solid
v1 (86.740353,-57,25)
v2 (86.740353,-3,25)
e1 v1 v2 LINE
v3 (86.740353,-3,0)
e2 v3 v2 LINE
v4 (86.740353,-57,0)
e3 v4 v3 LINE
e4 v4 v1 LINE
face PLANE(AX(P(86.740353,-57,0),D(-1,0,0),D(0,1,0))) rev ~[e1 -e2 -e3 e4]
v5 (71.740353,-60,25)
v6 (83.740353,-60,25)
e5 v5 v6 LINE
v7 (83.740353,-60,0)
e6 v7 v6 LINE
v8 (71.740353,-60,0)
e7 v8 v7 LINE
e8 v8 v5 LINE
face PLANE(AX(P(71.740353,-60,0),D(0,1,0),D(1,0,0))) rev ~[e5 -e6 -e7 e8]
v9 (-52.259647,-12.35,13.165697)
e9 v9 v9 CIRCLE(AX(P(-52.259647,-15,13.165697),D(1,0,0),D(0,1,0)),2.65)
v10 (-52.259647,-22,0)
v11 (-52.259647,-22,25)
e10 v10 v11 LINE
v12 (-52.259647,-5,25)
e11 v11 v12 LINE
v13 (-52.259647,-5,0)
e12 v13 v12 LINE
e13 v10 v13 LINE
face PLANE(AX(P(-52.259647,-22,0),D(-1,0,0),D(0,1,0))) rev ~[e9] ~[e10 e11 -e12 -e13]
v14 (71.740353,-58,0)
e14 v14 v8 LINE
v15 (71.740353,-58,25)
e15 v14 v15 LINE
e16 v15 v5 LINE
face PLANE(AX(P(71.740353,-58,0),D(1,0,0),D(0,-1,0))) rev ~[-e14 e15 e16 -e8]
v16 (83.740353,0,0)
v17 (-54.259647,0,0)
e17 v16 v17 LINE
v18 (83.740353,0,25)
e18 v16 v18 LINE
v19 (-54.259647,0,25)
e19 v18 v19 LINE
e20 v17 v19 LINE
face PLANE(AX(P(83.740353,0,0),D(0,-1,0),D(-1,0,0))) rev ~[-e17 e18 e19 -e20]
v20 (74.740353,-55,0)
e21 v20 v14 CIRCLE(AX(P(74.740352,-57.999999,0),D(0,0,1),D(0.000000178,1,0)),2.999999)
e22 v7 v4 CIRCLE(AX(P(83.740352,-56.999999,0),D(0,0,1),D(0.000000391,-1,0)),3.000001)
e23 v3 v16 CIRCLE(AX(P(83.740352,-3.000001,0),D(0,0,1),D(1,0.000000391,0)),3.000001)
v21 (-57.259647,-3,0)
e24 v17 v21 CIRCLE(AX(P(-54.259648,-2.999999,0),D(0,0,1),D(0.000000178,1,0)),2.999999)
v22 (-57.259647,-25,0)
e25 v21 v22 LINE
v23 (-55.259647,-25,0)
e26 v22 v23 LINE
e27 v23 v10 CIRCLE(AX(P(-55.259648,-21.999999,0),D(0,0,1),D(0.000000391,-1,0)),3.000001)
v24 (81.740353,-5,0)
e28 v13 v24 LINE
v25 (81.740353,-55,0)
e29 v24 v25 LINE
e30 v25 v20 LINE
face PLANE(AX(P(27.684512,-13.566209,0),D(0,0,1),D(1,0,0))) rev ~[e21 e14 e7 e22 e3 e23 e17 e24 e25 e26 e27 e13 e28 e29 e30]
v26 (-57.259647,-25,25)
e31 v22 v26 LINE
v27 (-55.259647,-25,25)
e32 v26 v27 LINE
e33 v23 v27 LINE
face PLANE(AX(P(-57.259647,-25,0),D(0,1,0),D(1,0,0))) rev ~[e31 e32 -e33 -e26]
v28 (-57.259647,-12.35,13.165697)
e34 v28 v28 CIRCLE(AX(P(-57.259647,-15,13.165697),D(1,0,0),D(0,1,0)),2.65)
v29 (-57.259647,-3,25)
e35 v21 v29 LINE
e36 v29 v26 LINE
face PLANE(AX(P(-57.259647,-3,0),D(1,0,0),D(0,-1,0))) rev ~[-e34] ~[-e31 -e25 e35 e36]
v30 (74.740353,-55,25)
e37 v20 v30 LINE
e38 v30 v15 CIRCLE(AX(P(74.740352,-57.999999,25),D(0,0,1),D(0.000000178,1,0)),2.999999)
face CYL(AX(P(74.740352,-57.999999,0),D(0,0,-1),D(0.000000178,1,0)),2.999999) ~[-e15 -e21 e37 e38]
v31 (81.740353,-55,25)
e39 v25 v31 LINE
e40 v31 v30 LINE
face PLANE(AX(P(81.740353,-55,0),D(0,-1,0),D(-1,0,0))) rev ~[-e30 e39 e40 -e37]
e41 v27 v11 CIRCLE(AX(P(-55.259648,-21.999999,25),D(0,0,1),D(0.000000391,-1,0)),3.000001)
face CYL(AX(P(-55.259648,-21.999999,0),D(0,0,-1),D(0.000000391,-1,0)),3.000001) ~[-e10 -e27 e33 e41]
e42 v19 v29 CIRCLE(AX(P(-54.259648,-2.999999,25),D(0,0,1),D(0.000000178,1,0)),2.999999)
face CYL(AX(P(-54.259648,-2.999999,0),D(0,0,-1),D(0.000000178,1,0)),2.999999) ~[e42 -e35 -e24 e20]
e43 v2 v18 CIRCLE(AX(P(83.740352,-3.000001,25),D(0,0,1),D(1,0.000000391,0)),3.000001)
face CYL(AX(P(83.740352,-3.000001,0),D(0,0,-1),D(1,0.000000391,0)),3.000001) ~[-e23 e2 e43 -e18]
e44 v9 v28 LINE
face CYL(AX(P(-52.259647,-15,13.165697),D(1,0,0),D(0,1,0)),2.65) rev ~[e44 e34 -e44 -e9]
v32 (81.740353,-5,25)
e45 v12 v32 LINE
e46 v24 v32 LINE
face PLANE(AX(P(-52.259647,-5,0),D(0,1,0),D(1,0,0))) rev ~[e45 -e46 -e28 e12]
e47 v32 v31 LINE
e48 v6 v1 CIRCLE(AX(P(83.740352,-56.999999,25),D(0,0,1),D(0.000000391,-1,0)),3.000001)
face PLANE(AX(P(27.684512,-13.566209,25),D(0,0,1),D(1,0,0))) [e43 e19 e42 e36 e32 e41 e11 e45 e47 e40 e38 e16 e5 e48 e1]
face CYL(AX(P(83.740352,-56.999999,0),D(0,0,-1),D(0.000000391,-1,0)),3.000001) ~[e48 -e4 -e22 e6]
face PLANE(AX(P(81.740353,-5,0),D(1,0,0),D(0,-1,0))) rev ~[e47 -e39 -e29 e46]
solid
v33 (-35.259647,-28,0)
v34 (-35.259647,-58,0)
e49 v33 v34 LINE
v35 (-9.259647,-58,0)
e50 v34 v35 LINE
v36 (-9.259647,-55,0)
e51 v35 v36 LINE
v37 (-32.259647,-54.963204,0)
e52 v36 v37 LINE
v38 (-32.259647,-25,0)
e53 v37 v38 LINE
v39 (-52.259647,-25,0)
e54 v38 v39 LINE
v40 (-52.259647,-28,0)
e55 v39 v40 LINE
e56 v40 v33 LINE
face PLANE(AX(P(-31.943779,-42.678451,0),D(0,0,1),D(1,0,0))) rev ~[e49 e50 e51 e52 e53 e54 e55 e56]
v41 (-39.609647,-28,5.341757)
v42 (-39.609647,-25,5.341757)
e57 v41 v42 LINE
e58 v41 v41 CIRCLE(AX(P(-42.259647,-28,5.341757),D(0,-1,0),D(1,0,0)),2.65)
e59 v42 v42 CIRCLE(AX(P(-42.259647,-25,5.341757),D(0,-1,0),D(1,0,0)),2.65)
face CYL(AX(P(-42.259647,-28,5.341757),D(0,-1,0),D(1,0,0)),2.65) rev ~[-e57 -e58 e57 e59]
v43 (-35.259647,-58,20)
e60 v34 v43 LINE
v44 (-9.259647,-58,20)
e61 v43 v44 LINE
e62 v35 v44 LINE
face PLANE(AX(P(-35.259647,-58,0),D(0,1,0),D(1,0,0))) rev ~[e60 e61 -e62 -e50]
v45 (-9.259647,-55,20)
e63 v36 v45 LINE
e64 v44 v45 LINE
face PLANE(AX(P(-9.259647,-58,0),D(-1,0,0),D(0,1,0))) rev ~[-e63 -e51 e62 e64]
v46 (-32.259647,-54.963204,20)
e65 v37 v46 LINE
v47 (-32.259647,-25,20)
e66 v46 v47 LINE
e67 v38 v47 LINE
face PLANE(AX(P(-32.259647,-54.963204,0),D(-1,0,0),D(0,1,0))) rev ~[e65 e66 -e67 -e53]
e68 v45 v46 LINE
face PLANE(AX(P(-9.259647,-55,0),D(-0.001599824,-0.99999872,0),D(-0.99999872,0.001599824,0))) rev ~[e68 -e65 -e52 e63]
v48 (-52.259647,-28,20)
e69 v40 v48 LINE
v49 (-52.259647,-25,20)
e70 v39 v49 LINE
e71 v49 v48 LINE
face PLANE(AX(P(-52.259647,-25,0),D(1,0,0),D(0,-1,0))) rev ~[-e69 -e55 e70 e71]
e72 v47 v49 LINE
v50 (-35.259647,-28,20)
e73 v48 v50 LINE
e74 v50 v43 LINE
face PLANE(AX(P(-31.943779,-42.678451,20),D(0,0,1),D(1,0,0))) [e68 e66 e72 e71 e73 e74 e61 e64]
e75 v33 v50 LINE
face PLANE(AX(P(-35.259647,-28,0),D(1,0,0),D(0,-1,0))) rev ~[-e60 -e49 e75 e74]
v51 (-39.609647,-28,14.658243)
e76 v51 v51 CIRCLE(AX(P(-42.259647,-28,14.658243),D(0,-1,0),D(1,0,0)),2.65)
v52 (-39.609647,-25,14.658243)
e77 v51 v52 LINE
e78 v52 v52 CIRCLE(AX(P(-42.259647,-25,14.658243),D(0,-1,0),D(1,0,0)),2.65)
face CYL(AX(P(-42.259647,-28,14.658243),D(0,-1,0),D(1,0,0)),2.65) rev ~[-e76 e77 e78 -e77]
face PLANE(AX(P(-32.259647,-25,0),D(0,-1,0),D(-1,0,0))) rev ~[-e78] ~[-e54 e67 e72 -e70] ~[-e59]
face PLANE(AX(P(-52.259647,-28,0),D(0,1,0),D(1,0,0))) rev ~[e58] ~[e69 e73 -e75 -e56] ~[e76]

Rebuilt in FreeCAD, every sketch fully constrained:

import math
import FreeCAD as App
import Part
import Sketcher
from FreeCAD import Vector


def edges_at(feature, points):
    """Names of the edges that pass closest to the given points."""
    edges = feature.Shape.Edges
    near = lambda p: min(range(len(edges)), key=lambda i: edges[i].distToShape(Part.Vertex(*p))[0])
    return sorted({f"Edge{near(p) + 1}" for p in points})


def add_polygon(sketch, points):
    """Adds a closed chain of lines whose ends are joined by coincident constraints."""
    first, n = sketch.GeometryCount, len(points)
    for a, b in zip(points, points[1:] + points[:1]):
        sketch.addGeometry(Part.LineSegment(App.Vector(*a, 0), App.Vector(*b, 0)), False)
    for i in range(n):
        sketch.addConstraint(Sketcher.Constraint("Coincident", first + i, 2, first + (i + 1) % n, 1))

doc = App.newDocument("Part")
body = doc.addObject("PartDesign::Body", "Body")

# Sketch on XY plane
sketch1 = doc.addObject("Sketcher::SketchObject", "Sketch")
body.addObject(sketch1)
sketch1.AttachmentSupport = (doc.XY_Plane, [""])
sketch1.MapMode = "FlatFace"
sketch1.addGeometry([
    Part.LineSegment(Vector(83.7, 0, 0), Vector(-54.3, 0, 0)),  # 0
    Part.ArcOfCircle(Part.Circle(Vector(-54.3, -3, 0), Vector(0, 0, 1), 3), math.radians(90), math.radians(180)),  # 1
    Part.LineSegment(Vector(-57.3, -3, 0), Vector(-57.3, -25, 0)),  # 2
    Part.LineSegment(Vector(-57.3, -25, 0), Vector(-55.3, -25, 0)),  # 3
    Part.ArcOfCircle(Part.Circle(Vector(-55.3, -22, 0), Vector(0, 0, 1), 3), math.radians(-90), math.radians(0)),  # 4
    Part.LineSegment(Vector(-52.3, -22, 0), Vector(-52.3, -5, 0)),  # 5
    Part.LineSegment(Vector(-52.3, -5, 0), Vector(81.7, -5, 0)),  # 6
    Part.LineSegment(Vector(81.7, -5, 0), Vector(81.7, -55, 0)),  # 7
    Part.LineSegment(Vector(81.7, -55, 0), Vector(74.7, -55, 0)),  # 8
    Part.ArcOfCircle(Part.Circle(Vector(74.7, -58, 0), Vector(0, 0, 1), 3), math.radians(90), math.radians(180)),  # 9
    Part.LineSegment(Vector(71.7, -58, 0), Vector(71.7, -60, 0)),  # 10
    Part.LineSegment(Vector(71.7, -60, 0), Vector(83.7, -60, 0)),  # 11
    Part.ArcOfCircle(Part.Circle(Vector(83.7, -57, 0), Vector(0, 0, 1), 3), math.radians(-90), math.radians(0)),  # 12
    Part.LineSegment(Vector(86.7, -57, 0), Vector(86.7, -3, 0)),  # 13
    Part.ArcOfCircle(Part.Circle(Vector(83.7, -3, 0), Vector(0, 0, 1), 3), math.radians(0), math.radians(90)),  # 14
], False)
sketch1.addConstraint([
    Sketcher.Constraint("Tangent", 0, 2, 1, 1),
    Sketcher.Constraint("Tangent", 1, 2, 2, 1),
    Sketcher.Constraint("Coincident", 2, 2, 3, 1),
    Sketcher.Constraint("Tangent", 3, 2, 4, 1),
    Sketcher.Constraint("Tangent", 4, 2, 5, 1),
    Sketcher.Constraint("Coincident", 5, 2, 6, 1),
    Sketcher.Constraint("Coincident", 6, 2, 7, 1),
    Sketcher.Constraint("Coincident", 7, 2, 8, 1),
    Sketcher.Constraint("Tangent", 8, 2, 9, 1),
    Sketcher.Constraint("Tangent", 9, 2, 10, 1),
    Sketcher.Constraint("Coincident", 10, 2, 11, 1),
    Sketcher.Constraint("Tangent", 11, 2, 12, 1),
    Sketcher.Constraint("Tangent", 12, 2, 13, 1),
    Sketcher.Constraint("Tangent", 13, 2, 14, 1),
    Sketcher.Constraint("Tangent", 14, 2, 0, 1),
    Sketcher.Constraint("Horizontal", 0),
    Sketcher.Constraint("Vertical", 2),
    Sketcher.Constraint("Horizontal", 3),
    Sketcher.Constraint("Vertical", 5),
    Sketcher.Constraint("Horizontal", 6),
    Sketcher.Constraint("Vertical", 7),
    Sketcher.Constraint("Horizontal", 8),
    Sketcher.Constraint("Vertical", 10),
    Sketcher.Constraint("Horizontal", 11),
    Sketcher.Constraint("Vertical", 13),
    Sketcher.Constraint("Equal", 1, 4),
    Sketcher.Constraint("Equal", 4, 9),
    Sketcher.Constraint("Equal", 9, 12),
    Sketcher.Constraint("Equal", 12, 14),
    Sketcher.Constraint("PointOnObject", 0, 2, -1),
    Sketcher.Constraint("Equal", 3, 10),
    Sketcher.Constraint("Radius", 1, 2.999999),
    Sketcher.Constraint("DistanceX", 0, 2, 0, 1, 138.0),
    Sketcher.Constraint("DistanceX", 3, 1, 3, 2, 2.0),
    Sketcher.Constraint("DistanceX", 6, 1, 6, 2, 134.0),
    Sketcher.Constraint("DistanceX", 8, 2, 8, 1, 7.0),
    Sketcher.Constraint("DistanceY", 2, 2, 2, 1, 22.0),
    Sketcher.Constraint("DistanceY", 5, 1, 5, 2, 17.0),
    Sketcher.Constraint("DistanceY", 7, 2, 7, 1, 50.0),
    Sketcher.Constraint("DistanceX", 4, 3, -1, 1, 55.259648),
])
pad1 = doc.addObject("PartDesign::Pad", "Pad")
body.addObject(pad1)
pad1.Profile = sketch1
pad1.Length = 25

# Sketch on YZ plane
sketch2 = doc.addObject("Sketcher::SketchObject", "Sketch001")
body.addObject(sketch2)
sketch2.AttachmentSupport = (doc.YZ_Plane, [""])
sketch2.MapMode = "FlatFace"
sketch2.AttachmentOffset = App.Placement(Vector(0, 0, -52.259647), App.Rotation())
sketch2.addGeometry(Part.Circle(Vector(-15, 13.2, 0), Vector(0, 0, 1), 2.6), False)
sketch2.addConstraint([
    Sketcher.Constraint("Diameter", 0, 5.3),
    Sketcher.Constraint("DistanceX", 0, 3, -1, 1, 15.0),
    Sketcher.Constraint("DistanceY", -1, 1, 0, 3, 13.165697),
])
pocket1 = doc.addObject("PartDesign::Pocket", "Pocket")
body.addObject(pocket1)
pocket1.Profile = sketch2
pocket1.Type = "ThroughAll"
body2 = doc.addObject("PartDesign::Body", "Body001")

# Sketch on XZ plane
sketch3 = doc.addObject("Sketcher::SketchObject", "Sketch002")
body2.addObject(sketch3)
sketch3.AttachmentSupport = (doc.getObject("XZ_Plane001"), [""])
sketch3.MapMode = "FlatFace"
sketch3.AttachmentOffset = App.Placement(Vector(0, 0, 60.9), App.Rotation())
add_polygon(sketch3, [(-57.2, 20), (-57.2, 0), (-17.2, 0), (-17.2, 20)])  # lines 0-3
sketch3.addGeometry(Part.Circle(Vector(-47.2, 5, 0), Vector(0, 0, 1), 2.6), False)  # 4
sketch3.addGeometry(Part.Circle(Vector(-47.2, 15, 0), Vector(0, 0, 1), 2.6), False)  # 5
sketch3.addConstraint([
    Sketcher.Constraint("Vertical", 0),
    Sketcher.Constraint("Horizontal", 1),
    Sketcher.Constraint("Vertical", 2),
    Sketcher.Constraint("Horizontal", 3),
    Sketcher.Constraint("Equal", 4, 5),
    Sketcher.Constraint("PointOnObject", 0, 2, -1),
    Sketcher.Constraint("Vertical", 4, 3, 5, 3),
    Sketcher.Constraint("Diameter", 4, 5.3),
    Sketcher.Constraint("DistanceX", 1, 1, 1, 2, 40.0),
    Sketcher.Constraint("DistanceY", 0, 2, 0, 1, 20.0),
    Sketcher.Constraint("DistanceX", 0, 2, 4, 3, 10.0),
    Sketcher.Constraint("DistanceX", 4, 3, -1, 1, 47.213471),
    Sketcher.Constraint("DistanceY", -1, 1, 4, 3, 5.012961),
    Sketcher.Constraint("DistanceY", -1, 1, 5, 3, 14.988404),
])
pad2 = doc.addObject("PartDesign::Pad", "Pad001")
body2.addObject(pad2)
pad2.Profile = sketch3
pad2.Length = 3
doc.recompute()

fillet = doc.addObject("PartDesign::Fillet", "Fillet")
body2.addObject(fillet)
fillet.Base = (pad2, edges_at(pad2, [
    (-37.213, -63.9, 20),
    (-37.213, -60.9, 20),
    (-37.213, -63.9, 0),
    (-37.213, -60.9, 0),
    (-17.213, -63.9, 10),
    (-17.213, -60.9, 10),
    (-57.213, -63.9, 10),
    (-57.213, -60.9, 10),
]))
fillet.Radius = 1
body3 = doc.addObject("PartDesign::Body", "Body002")

# Sketch on XY plane
sketch4 = doc.addObject("Sketcher::SketchObject", "Sketch003")
body3.addObject(sketch4)
sketch4.AttachmentSupport = (doc.getObject("XY_Plane002"), [""])
sketch4.MapMode = "FlatFace"
add_polygon(sketch4, [(-32.3, -25), (-52.3, -25), (-52.3, -28), (-35.3, -28), (-35.3, -58), (-9.3, -58), (-9.3, -55), (-32.3, -55)])  # lines 0-7
sketch4.addConstraint([
    Sketcher.Constraint("Horizontal", 0),
    Sketcher.Constraint("Vertical", 1),
    Sketcher.Constraint("Horizontal", 2),
    Sketcher.Constraint("Vertical", 3),
    Sketcher.Constraint("Horizontal", 4),
    Sketcher.Constraint("Vertical", 5),
    Sketcher.Constraint("Vertical", 7),
    Sketcher.Constraint("Equal", 1, 5),
    Sketcher.Constraint("DistanceX", 0, 2, 0, 1, 20.0),
    Sketcher.Constraint("DistanceX", 2, 1, 2, 2, 17.0),
    Sketcher.Constraint("DistanceX", 4, 1, 4, 2, 26.0),
    Sketcher.Constraint("DistanceY", 1, 2, 1, 1, 3.0),
    Sketcher.Constraint("DistanceY", 3, 2, 3, 1, 30.0),
    Sketcher.Constraint("DistanceY", 0, 2, -1, 1, 25.0),
    Sketcher.Constraint("DistanceY", 7, 1, 7, 2, 29.963204),
    Sketcher.Constraint("DistanceX", 0, 2, -1, 1, 52.259647),
])
pad3 = doc.addObject("PartDesign::Pad", "Pad002")
body3.addObject(pad3)
pad3.Profile = sketch4
pad3.Length = 20

# Sketch on XZ plane
sketch5 = doc.addObject("Sketcher::SketchObject", "Sketch004")
body3.addObject(sketch5)
sketch5.AttachmentSupport = (doc.getObject("XZ_Plane002"), [""])
sketch5.MapMode = "FlatFace"
sketch5.AttachmentOffset = App.Placement(Vector(0, 0, 28), App.Rotation())
sketch5.addGeometry([
    Part.Circle(Vector(-42.3, 14.7, 0), Vector(0, 0, 1), 2.6),
    Part.Circle(Vector(-42.3, 5.3, 0), Vector(0, 0, 1), 2.6),
], False)
sketch5.addConstraint([
    Sketcher.Constraint("Equal", 0, 1),
    Sketcher.Constraint("Vertical", 0, 3, 1, 3),
    Sketcher.Constraint("Diameter", 0, 5.3),
    Sketcher.Constraint("DistanceX", 0, 3, -1, 1, 42.259647),
    Sketcher.Constraint("DistanceY", -1, 1, 0, 3, 14.658243),
    Sketcher.Constraint("DistanceY", -1, 1, 1, 3, 5.341757),
])
pocket2 = doc.addObject("PartDesign::Pocket", "Pocket001")
body3.addObject(pocket2)
pocket2.Profile = sketch5
pocket2.Type = "ThroughAll"
body2.Visibility = False

doc.recompute()
